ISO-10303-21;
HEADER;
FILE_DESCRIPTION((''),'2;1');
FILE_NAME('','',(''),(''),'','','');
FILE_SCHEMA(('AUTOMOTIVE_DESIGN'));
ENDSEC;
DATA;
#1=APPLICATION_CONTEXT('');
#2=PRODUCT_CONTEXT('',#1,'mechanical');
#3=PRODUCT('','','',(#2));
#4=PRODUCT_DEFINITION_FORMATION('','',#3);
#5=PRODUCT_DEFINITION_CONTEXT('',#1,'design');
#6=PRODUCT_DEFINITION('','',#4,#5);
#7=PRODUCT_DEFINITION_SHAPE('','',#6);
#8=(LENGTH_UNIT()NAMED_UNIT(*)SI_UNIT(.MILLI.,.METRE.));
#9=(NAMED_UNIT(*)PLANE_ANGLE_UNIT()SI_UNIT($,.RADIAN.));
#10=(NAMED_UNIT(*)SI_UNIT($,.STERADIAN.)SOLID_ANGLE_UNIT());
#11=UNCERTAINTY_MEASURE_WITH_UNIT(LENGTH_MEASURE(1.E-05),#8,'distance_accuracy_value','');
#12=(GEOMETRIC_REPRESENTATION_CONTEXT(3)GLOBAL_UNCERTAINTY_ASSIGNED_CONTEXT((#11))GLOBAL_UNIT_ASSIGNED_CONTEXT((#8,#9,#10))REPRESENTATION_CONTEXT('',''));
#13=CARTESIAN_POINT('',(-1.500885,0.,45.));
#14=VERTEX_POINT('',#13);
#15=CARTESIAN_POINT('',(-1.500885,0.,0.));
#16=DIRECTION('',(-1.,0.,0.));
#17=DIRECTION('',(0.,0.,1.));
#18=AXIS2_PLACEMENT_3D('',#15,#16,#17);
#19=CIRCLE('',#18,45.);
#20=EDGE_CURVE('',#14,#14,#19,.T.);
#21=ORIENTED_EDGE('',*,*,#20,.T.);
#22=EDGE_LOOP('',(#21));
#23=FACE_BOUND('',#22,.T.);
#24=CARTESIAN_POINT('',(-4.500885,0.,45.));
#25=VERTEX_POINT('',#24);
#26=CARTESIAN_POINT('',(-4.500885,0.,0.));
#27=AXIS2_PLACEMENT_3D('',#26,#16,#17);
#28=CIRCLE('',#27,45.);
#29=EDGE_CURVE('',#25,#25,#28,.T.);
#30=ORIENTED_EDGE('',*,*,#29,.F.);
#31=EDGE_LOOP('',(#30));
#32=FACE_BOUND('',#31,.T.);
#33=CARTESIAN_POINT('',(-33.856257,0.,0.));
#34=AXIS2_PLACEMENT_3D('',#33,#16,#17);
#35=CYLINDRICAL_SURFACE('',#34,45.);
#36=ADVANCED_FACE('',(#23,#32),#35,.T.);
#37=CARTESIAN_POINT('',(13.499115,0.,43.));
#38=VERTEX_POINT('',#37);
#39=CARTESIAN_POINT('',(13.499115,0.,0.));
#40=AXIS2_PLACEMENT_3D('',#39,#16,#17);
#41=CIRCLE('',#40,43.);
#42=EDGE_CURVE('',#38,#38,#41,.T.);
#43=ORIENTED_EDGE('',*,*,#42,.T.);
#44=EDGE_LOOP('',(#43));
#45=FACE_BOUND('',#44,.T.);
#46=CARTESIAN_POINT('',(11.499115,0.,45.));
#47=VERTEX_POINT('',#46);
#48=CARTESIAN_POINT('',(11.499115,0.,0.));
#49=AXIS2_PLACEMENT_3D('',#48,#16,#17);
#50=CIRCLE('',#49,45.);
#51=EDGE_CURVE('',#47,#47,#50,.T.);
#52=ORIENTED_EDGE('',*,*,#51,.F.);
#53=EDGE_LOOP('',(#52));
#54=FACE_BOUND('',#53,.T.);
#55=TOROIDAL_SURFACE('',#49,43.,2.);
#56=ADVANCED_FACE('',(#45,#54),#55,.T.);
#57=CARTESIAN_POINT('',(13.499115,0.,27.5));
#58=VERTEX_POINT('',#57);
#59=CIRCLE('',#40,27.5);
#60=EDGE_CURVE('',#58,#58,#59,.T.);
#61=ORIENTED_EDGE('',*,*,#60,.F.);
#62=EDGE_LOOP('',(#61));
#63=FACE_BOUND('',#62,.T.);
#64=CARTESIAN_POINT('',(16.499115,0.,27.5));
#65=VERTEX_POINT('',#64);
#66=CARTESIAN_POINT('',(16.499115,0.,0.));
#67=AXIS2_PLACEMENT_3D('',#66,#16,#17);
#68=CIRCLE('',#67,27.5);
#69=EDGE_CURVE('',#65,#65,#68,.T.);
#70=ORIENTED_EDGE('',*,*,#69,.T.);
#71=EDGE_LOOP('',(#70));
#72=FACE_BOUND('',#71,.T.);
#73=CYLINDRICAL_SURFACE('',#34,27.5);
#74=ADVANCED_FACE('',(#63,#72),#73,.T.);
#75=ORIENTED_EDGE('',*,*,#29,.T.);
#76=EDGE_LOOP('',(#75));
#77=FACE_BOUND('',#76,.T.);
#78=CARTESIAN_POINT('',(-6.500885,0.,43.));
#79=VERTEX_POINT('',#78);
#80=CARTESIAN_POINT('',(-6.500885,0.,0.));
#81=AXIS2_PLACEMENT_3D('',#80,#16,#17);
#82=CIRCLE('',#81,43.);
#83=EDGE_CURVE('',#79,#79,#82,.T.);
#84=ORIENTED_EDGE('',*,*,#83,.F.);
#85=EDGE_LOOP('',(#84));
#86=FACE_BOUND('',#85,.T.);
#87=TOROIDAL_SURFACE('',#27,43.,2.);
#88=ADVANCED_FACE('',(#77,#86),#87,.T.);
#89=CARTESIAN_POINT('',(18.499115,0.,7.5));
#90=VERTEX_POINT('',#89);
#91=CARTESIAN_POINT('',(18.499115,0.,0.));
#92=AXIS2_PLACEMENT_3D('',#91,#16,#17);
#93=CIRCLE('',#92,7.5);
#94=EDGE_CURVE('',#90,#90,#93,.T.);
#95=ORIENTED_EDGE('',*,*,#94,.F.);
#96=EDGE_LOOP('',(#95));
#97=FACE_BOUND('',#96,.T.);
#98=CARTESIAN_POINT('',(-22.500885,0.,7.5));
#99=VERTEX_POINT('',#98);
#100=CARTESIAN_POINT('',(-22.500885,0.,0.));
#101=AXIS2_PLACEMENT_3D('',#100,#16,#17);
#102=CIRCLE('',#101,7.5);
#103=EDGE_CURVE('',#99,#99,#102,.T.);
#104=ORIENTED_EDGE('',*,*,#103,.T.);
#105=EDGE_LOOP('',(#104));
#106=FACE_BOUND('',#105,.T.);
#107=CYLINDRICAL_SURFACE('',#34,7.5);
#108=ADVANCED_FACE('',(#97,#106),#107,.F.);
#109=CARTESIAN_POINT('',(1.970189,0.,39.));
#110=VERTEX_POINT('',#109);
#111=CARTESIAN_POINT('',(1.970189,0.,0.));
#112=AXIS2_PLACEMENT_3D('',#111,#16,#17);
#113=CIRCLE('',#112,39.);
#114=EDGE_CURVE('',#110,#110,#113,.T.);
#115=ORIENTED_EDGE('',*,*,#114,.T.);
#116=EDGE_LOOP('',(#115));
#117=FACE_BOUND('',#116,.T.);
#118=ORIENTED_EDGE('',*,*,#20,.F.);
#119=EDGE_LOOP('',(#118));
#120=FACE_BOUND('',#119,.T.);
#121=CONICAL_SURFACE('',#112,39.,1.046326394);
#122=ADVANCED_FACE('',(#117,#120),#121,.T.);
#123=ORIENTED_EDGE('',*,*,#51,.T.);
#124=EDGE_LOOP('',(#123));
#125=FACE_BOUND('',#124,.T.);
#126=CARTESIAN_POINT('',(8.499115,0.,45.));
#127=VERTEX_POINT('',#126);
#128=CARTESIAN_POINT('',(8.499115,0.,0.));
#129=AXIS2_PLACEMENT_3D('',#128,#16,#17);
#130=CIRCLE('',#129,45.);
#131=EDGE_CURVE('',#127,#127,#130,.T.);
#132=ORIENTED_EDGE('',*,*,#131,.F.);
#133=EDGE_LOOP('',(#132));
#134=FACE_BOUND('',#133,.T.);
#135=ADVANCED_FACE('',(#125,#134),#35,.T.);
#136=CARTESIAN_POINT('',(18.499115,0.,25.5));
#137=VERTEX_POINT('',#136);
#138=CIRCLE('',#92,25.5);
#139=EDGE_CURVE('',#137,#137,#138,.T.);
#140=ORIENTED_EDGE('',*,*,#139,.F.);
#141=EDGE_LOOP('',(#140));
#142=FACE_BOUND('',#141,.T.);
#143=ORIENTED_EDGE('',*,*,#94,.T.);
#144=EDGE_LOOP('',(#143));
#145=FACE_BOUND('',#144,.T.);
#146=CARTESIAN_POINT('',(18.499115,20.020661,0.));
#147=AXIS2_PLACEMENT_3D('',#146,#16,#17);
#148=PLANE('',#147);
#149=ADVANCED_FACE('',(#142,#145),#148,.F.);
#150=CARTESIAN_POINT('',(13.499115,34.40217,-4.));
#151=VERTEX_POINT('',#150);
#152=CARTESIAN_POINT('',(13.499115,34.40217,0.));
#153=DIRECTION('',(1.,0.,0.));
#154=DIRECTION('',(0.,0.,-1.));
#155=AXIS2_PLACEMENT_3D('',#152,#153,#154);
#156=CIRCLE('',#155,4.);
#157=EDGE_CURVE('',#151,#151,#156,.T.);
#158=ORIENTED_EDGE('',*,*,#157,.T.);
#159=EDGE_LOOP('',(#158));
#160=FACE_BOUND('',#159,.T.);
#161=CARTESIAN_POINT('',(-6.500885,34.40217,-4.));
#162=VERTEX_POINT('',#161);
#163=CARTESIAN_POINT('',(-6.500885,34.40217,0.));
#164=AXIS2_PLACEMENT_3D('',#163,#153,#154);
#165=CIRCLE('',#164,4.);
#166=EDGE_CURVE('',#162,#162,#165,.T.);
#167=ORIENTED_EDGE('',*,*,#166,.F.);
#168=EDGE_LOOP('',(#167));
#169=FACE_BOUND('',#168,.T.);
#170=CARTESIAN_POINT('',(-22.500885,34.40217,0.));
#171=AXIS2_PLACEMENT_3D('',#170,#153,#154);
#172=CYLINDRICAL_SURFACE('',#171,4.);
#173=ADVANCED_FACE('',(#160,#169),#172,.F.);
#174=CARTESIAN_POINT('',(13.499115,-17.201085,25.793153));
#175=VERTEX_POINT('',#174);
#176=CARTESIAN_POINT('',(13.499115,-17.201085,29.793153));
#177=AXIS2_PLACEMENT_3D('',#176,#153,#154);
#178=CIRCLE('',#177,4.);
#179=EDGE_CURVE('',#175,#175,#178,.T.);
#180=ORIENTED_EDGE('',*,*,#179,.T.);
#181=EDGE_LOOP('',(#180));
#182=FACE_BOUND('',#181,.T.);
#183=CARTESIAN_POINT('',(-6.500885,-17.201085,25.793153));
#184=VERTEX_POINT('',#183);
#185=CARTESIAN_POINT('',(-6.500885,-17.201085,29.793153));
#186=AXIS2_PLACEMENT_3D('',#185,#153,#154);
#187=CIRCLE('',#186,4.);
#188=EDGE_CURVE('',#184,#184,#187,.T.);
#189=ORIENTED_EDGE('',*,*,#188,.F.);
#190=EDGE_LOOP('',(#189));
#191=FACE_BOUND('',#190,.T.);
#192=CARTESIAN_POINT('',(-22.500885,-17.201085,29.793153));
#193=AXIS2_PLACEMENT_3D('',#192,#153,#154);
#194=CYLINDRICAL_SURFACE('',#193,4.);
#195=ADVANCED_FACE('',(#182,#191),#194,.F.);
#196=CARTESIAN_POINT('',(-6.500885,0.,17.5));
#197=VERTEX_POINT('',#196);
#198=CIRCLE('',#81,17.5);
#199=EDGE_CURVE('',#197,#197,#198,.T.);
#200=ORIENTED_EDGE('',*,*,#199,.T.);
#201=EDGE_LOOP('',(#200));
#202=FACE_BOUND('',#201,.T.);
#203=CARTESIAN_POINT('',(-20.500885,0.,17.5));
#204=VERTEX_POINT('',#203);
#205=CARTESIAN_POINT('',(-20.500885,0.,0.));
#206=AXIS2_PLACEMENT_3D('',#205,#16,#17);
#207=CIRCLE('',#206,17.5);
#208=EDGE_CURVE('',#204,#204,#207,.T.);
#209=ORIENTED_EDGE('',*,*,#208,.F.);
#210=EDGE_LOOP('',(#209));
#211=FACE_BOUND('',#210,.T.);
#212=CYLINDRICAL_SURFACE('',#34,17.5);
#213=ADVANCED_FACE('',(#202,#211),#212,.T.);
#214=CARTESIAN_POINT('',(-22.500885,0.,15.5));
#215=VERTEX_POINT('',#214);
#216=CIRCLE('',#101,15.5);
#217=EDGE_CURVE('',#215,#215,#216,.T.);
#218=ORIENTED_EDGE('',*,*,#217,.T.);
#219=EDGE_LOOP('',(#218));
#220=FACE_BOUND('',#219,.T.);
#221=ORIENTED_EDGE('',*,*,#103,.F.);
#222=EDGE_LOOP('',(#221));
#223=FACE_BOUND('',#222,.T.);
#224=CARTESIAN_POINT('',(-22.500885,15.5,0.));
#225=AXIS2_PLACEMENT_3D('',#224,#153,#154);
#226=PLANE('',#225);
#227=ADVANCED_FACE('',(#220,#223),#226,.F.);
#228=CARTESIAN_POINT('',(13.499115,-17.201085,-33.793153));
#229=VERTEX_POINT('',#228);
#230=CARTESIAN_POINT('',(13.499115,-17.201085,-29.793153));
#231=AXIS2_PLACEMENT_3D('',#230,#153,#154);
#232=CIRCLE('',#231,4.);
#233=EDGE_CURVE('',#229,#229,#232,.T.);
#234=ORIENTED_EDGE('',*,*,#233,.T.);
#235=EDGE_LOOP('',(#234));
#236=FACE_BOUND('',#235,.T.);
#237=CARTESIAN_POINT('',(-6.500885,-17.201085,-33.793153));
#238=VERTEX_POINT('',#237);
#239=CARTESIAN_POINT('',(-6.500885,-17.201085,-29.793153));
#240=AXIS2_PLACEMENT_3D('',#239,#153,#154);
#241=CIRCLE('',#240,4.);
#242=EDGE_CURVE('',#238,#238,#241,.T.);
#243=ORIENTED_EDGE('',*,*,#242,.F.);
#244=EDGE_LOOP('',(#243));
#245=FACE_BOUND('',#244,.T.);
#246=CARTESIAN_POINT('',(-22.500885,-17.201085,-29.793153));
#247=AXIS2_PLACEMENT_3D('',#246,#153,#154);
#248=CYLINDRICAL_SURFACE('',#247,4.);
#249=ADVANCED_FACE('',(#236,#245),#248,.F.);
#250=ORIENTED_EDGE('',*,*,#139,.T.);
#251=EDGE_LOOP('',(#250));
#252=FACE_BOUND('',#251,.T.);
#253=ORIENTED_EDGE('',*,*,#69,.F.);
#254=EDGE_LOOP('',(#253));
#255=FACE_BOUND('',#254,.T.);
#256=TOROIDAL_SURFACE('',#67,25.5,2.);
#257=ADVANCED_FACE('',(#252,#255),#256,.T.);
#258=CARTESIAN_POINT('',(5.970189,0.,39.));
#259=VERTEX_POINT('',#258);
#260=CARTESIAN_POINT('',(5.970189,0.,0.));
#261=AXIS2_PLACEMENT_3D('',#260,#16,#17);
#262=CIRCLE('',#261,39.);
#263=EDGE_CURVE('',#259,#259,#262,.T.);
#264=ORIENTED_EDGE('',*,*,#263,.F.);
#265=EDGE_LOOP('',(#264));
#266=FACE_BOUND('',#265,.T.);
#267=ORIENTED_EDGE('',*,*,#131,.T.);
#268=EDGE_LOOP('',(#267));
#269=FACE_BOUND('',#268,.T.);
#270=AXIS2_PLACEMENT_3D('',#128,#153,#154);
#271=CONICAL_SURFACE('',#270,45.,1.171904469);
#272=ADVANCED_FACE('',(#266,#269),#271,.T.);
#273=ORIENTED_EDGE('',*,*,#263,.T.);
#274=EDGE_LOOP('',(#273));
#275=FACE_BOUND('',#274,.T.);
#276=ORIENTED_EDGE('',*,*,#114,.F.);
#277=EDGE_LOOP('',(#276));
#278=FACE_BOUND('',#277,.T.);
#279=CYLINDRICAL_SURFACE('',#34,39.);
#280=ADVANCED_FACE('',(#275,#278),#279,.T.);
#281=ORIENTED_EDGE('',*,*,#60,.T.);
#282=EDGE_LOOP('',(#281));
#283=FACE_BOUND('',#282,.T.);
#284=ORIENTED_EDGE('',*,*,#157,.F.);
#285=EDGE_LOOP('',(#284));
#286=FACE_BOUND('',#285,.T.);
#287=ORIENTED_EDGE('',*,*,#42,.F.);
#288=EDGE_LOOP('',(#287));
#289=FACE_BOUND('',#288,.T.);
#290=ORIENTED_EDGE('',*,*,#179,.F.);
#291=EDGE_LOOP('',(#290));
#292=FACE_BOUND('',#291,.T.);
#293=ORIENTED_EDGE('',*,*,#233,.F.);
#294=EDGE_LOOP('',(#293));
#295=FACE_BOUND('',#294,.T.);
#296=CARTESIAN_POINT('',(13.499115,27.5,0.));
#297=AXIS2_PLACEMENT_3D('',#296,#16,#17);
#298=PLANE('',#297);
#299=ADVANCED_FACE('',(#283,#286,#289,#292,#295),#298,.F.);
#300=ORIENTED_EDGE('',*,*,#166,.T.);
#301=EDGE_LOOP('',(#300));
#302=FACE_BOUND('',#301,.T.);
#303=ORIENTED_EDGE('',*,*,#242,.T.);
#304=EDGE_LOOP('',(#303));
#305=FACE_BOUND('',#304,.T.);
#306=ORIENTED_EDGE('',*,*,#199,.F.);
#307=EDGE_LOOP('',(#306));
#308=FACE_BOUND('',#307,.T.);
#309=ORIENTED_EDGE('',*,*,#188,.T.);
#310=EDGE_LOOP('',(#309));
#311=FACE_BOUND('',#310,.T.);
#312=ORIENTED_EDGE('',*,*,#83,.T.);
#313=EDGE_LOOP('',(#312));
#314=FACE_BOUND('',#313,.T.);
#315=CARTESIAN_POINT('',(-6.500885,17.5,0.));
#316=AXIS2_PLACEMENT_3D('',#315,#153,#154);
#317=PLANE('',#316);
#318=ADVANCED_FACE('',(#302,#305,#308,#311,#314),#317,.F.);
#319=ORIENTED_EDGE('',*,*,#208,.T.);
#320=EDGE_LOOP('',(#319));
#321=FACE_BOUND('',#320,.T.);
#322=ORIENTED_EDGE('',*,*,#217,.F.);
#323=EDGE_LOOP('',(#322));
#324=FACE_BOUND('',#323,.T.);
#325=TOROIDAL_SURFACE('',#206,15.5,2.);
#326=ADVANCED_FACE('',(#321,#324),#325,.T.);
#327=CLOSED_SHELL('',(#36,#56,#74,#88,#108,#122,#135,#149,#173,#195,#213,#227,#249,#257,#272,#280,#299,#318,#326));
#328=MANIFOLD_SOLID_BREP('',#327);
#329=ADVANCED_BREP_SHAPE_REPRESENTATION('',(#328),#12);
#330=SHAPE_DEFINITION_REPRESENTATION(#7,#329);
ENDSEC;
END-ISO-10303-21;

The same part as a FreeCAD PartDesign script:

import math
import FreeCAD as App
import Part
import Sketcher

V = App.Vector
Q = App.Units.Quantity

doc = App.newDocument("Part")
params = doc.addObject("Spreadsheet::Sheet", "Params")
for row, (alias, value) in enumerate([
    ("sketch1_radius", "2 mm"),
    ("sketch1_width", "3 mm"),
    ("sketch1_width2", "14 mm"),
    ("sketch1_width3", "41 mm"),
    ("sketch1_width4", "4 mm"),
    ("revolution_angle", "360 deg"),
    ("sketch2_diameter", "8 mm"),
], start=1):
    params.set(f"A{row}", alias)
    params.set(f"B{row}", "=" + value)
    params.setAlias(f"B{row}", alias)

body = doc.addObject("PartDesign::Body", "Body")

# Sketch on XY plane
sketch1 = body.newObject("Sketcher::SketchObject", "Sketch")
sketch1.AttachmentSupport = (doc.getObject("XY_Plane"), [""])
sketch1.MapMode = "FlatFace"
sketch1.addGeometry([
    Part.LineSegment(V(2, 39, 0), V(-1.5, 45, 0)),  # 0
    Part.LineSegment(V(-1.5, 45, 0), V(-4.5, 45, 0)),  # 1
    Part.ArcOfCircle(Part.Circle(V(-4.5, 43, 0), V(0, 0, 1), 2), math.radians(90), math.radians(180)),  # 2
    Part.LineSegment(V(-6.5, 43, 0), V(-6.5, 17.5, 0)),  # 3
    Part.LineSegment(V(-6.5, 17.5, 0), V(-20.5, 17.5, 0)),  # 4
    Part.ArcOfCircle(Part.Circle(V(-20.5, 15.5, 0), V(0, 0, 1), 2), math.radians(90), math.radians(180)),  # 5
    Part.LineSegment(V(-22.5, 15.5, 0), V(-22.5, 7.5, 0)),  # 6
    Part.LineSegment(V(-22.5, 7.5, 0), V(18.5, 7.5, 0)),  # 7
    Part.LineSegment(V(18.5, 7.5, 0), V(18.5, 25.5, 0)),  # 8
    Part.ArcOfCircle(Part.Circle(V(16.5, 25.5, 0), V(0, 0, 1), 2), math.radians(0), math.radians(90)),  # 9
    Part.LineSegment(V(16.5, 27.5, 0), V(13.5, 27.5, 0)),  # 10
    Part.LineSegment(V(13.5, 27.5, 0), V(13.5, 43, 0)),  # 11
    Part.ArcOfCircle(Part.Circle(V(11.5, 43, 0), V(0, 0, 1), 2), math.radians(0), math.radians(90)),  # 12
    Part.LineSegment(V(11.5, 45, 0), V(8.5, 45, 0)),  # 13
    Part.LineSegment(V(8.5, 45, 0), V(6, 39, 0)),  # 14
    Part.LineSegment(V(6, 39, 0), V(2, 39, 0)),  # 15
], False)
sketch1.addConstraint([
    Sketcher.Constraint("Coincident", 0, 2, 1, 1),
    Sketcher.Constraint("Tangent", 1, 2, 2, 1),
    Sketcher.Constraint("Tangent", 2, 2, 3, 1),
    Sketcher.Constraint("Coincident", 3, 2, 4, 1),
    Sketcher.Constraint("Tangent", 4, 2, 5, 1),
    Sketcher.Constraint("Tangent", 5, 2, 6, 1),
    Sketcher.Constraint("Coincident", 6, 2, 7, 1),
    Sketcher.Constraint("Coincident", 7, 2, 8, 1),
    Sketcher.Constraint("Tangent", 8, 2, 9, 1),
    Sketcher.Constraint("Tangent", 9, 2, 10, 1),
    Sketcher.Constraint("Coincident", 10, 2, 11, 1),
    Sketcher.Constraint("Tangent", 11, 2, 12, 1),
    Sketcher.Constraint("Tangent", 12, 2, 13, 1),
    Sketcher.Constraint("Coincident", 13, 2, 14, 1),
    Sketcher.Constraint("Coincident", 14, 2, 15, 1),
    Sketcher.Constraint("Coincident", 15, 2, 0, 1),
    Sketcher.Constraint("Horizontal", 1),
    Sketcher.Constraint("Vertical", 3),
    Sketcher.Constraint("Horizontal", 4),
    Sketcher.Constraint("Vertical", 6),
    Sketcher.Constraint("Horizontal", 7),
    Sketcher.Constraint("Vertical", 8),
    Sketcher.Constraint("Horizontal", 10),
    Sketcher.Constraint("Vertical", 11),
    Sketcher.Constraint("Horizontal", 13),
    Sketcher.Constraint("Horizontal", 15),
    Sketcher.Constraint("Equal", 2, 5),
    Sketcher.Constraint("Equal", 5, 9),
    Sketcher.Constraint("Equal", 9, 12),
    Sketcher.Constraint("Horizontal", 2, 3, 12, 3),
    Sketcher.Constraint("Equal", 1, 10),
    Sketcher.Constraint("Equal", 10, 13),
    Sketcher.Constraint("Radius", 2, Q("2 mm")),
    Sketcher.Constraint("DistanceX", 1, 2, 1, 1, Q("3 mm")),
    Sketcher.Constraint("DistanceX", 4, 2, 4, 1, Q("14 mm")),
    Sketcher.Constraint("DistanceX", 7, 1, 7, 2, Q("41 mm")),
    Sketcher.Constraint("DistanceX", 15, 2, 15, 1, Q("4 mm")),
    Sketcher.Constraint("DistanceY", 6, 2, 6, 1, Q("8 mm")),
    Sketcher.Constraint("DistanceY", 8, 1, 8, 2, Q("18 mm")),
    Sketcher.Constraint("DistanceY", 3, 2, 3, 1, Q("25.5 mm")),
    Sketcher.Constraint("DistanceY", -1, 1, 2, 3, Q("43 mm")),
    Sketcher.Constraint("DistanceY", -1, 1, 14, 2, Q("39 mm")),
    Sketcher.Constraint("Distance", 14, Q("6.51118 mm")),
    Sketcher.Constraint("DistanceX", -1, 1, 14, 2, Q("5.970189 mm")),
])
sketch1.setExpression("Constraints[32]", "Params.sketch1_radius")
sketch1.setExpression("Constraints[33]", "Params.sketch1_width")
sketch1.setExpression("Constraints[34]", "Params.sketch1_width2")
sketch1.setExpression("Constraints[35]", "Params.sketch1_width3")
sketch1.setExpression("Constraints[36]", "Params.sketch1_width4")
revolution = body.newObject("PartDesign::Revolution", "Revolution")
revolution.Profile = sketch1
revolution.ReferenceAxis = (sketch1, ["H_Axis"])
revolution.setExpression("Angle", "Params.revolution_angle")

# Sketch on YZ plane
sketch2 = body.newObject("Sketcher::SketchObject", "Sketch001")
sketch2.AttachmentSupport = (doc.getObject("YZ_Plane"), [""])
sketch2.MapMode = "FlatFace"
sketch2.AttachmentOffset = App.Placement(V(0, 0, 13.499115), App.Rotation())
sketch2.addGeometry([
    Part.Circle(V(34.4, 0, 0), V(0, 0, 1), 4),
    Part.Circle(V(-17.2, -29.8, 0), V(0, 0, 1), 4),
    Part.Circle(V(-17.2, 29.8, 0), V(0, 0, 1), 4),
], False)
sketch2.addConstraint([
    Sketcher.Constraint("Equal", 0, 1),
    Sketcher.Constraint("Equal", 1, 2),
    Sketcher.Constraint("Symmetric", 1, 3, 2, 3, -1),
    Sketcher.Constraint("PointOnObject", 0, 3, -1),
    Sketcher.Constraint("Diameter", 0, Q("8 mm")),
    Sketcher.Constraint("DistanceX", -1, 1, 0, 3, Q("34.40217 mm")),
    Sketcher.Constraint("DistanceX", 1, 3, -1, 1, Q("17.201085 mm")),
    Sketcher.Constraint("DistanceY", 1, 3, -1, 1, Q("29.793153 mm")),
])
sketch2.setExpression("Constraints[4]", "Params.sketch2_diameter")
pocket1 = body.newObject("PartDesign::Pocket", "Pocket")
pocket1.Profile = sketch2
pocket1.Type = "ThroughAll"

doc.recompute()
